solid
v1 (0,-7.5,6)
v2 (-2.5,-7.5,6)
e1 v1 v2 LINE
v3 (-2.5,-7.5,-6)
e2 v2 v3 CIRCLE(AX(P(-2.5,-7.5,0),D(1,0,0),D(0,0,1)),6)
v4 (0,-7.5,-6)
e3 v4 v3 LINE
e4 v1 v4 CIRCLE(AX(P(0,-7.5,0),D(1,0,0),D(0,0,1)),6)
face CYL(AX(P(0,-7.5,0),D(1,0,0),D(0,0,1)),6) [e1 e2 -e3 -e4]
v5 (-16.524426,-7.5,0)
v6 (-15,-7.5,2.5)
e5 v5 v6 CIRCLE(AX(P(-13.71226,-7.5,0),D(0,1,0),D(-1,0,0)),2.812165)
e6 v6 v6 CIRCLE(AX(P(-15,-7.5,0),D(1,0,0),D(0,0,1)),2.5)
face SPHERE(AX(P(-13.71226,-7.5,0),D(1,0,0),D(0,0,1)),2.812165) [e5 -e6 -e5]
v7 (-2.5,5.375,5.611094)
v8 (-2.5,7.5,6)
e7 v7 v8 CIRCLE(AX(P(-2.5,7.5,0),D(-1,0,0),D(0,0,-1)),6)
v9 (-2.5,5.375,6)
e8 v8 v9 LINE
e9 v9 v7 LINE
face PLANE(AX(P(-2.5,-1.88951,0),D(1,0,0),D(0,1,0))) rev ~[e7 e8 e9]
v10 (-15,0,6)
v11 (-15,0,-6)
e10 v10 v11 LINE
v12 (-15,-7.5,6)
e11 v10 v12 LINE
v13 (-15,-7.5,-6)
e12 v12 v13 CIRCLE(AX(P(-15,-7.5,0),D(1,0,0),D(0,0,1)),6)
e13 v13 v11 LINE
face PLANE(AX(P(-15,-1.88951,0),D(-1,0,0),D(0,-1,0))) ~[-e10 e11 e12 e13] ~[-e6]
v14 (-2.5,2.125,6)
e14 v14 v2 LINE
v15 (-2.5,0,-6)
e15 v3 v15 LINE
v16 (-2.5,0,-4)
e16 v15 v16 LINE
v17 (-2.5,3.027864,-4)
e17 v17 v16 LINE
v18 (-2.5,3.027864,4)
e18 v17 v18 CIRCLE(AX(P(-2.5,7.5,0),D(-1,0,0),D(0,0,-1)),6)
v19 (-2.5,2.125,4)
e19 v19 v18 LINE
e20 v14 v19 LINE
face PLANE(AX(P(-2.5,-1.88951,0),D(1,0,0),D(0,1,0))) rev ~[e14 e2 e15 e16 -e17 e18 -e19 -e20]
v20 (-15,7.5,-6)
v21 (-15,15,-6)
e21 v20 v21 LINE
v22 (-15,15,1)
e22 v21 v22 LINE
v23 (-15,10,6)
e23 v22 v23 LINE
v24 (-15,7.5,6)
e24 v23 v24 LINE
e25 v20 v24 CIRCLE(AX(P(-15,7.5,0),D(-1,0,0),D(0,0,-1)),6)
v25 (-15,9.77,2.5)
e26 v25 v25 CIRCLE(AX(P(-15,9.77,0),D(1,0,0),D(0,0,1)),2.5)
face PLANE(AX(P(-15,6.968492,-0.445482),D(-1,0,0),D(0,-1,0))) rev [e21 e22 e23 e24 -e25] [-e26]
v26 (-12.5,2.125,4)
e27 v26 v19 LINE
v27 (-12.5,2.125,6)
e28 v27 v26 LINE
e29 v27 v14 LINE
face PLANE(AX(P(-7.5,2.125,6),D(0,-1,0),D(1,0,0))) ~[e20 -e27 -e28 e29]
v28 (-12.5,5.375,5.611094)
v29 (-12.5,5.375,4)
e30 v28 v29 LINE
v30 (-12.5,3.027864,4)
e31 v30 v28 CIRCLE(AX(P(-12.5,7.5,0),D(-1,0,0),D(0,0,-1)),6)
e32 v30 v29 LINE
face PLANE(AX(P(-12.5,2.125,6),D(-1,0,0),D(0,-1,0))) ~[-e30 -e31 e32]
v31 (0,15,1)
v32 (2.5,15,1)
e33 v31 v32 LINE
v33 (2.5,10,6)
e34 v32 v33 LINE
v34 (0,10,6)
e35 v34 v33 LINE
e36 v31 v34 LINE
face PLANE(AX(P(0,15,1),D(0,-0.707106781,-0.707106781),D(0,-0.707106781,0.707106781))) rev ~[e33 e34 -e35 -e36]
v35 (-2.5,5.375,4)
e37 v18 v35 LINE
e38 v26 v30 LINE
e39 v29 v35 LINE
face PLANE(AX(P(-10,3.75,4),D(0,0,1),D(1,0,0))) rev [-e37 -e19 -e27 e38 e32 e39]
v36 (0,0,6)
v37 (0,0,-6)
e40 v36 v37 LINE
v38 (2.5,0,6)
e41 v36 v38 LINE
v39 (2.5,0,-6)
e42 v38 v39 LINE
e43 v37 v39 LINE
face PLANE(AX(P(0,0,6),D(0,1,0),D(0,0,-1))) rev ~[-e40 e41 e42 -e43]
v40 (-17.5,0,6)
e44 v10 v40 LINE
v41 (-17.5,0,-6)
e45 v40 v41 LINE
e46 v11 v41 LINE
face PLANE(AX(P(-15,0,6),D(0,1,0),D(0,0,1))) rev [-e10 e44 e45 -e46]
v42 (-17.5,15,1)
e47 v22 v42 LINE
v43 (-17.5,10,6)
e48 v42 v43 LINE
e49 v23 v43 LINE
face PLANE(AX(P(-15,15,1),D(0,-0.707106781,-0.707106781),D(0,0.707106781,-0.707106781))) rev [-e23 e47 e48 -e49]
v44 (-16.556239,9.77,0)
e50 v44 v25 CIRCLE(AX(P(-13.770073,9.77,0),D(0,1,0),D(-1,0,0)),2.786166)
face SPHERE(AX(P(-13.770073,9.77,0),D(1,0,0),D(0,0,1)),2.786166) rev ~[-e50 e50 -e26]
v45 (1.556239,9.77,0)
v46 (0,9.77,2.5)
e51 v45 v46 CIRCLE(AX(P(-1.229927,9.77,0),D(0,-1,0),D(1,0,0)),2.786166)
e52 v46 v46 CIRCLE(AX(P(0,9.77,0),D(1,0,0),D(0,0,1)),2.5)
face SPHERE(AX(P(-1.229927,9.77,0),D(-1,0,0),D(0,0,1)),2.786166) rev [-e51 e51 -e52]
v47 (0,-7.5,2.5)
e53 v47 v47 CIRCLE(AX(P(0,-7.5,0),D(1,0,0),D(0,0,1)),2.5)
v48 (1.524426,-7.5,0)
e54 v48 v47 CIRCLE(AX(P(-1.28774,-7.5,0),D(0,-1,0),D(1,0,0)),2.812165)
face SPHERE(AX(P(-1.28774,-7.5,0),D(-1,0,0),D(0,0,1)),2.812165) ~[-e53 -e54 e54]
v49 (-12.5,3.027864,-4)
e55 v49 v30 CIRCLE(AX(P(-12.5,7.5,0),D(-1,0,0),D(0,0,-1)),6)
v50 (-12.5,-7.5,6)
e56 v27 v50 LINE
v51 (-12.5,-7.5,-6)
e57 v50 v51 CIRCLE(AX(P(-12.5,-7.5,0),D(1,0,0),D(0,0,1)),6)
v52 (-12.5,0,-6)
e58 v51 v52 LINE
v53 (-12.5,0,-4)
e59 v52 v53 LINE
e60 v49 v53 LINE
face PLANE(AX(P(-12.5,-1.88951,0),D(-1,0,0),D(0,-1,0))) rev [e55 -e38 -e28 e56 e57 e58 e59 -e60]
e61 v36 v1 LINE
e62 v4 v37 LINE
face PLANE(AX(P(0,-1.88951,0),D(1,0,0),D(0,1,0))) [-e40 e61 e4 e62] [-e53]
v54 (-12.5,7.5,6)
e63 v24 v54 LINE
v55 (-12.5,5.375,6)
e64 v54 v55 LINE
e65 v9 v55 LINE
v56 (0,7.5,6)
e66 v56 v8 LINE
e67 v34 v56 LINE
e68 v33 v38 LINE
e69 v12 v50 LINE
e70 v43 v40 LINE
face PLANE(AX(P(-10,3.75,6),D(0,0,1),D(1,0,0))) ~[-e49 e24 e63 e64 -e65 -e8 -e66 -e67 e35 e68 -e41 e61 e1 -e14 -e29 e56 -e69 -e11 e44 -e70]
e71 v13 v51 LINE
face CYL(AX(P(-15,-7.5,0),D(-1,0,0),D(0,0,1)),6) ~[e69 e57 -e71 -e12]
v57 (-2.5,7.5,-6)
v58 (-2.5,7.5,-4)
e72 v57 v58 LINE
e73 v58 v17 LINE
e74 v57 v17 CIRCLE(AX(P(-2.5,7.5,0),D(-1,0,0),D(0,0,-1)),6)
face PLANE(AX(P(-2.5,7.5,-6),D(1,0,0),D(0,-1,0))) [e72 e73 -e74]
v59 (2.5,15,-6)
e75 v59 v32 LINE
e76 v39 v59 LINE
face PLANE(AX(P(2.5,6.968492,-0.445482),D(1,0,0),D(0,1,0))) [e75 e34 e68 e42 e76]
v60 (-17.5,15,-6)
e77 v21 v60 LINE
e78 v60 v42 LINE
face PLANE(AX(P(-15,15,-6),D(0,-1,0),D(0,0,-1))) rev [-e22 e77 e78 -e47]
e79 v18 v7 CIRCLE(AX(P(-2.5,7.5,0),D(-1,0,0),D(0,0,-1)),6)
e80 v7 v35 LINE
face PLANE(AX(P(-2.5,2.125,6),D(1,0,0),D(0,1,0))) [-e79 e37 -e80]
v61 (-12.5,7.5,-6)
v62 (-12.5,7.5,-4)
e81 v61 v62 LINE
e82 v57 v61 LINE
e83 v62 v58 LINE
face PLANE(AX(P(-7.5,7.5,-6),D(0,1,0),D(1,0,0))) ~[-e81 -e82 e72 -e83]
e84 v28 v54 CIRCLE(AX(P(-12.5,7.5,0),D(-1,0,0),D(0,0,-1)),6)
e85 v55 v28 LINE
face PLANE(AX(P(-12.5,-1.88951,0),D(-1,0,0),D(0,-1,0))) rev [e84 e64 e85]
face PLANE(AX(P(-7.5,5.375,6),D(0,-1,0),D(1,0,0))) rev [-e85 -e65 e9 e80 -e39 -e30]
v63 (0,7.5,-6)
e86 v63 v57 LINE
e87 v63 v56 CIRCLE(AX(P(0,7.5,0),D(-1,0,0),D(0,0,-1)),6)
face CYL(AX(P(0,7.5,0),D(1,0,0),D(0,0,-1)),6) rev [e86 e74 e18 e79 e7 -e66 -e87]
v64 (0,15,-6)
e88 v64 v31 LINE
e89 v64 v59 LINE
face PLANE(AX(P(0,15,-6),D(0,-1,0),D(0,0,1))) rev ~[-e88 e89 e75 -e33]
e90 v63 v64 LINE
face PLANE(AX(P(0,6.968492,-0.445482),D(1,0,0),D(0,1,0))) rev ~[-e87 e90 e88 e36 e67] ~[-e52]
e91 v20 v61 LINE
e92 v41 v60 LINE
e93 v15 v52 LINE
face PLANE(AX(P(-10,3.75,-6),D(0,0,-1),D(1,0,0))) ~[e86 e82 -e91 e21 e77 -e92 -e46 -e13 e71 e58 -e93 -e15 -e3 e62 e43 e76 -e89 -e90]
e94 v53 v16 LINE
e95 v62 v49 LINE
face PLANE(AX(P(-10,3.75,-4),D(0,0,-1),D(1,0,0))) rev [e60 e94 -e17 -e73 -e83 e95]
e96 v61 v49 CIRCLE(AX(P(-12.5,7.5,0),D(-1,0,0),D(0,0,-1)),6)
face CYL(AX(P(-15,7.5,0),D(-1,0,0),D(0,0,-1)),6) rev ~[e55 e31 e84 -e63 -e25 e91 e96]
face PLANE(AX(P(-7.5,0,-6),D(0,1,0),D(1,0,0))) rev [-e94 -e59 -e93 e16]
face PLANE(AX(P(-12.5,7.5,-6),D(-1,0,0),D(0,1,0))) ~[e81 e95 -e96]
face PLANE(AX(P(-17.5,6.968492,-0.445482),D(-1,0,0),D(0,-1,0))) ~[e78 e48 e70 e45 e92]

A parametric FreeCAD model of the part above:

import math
import FreeCAD as App
import Part
import Sketcher


def add_polygon(sketch, points):
    """Adds a closed chain of lines whose ends are joined by coincident constraints."""
    first, n = sketch.GeometryCount, len(points)
    for a, b in zip(points, points[1:] + points[:1]):
        sketch.addGeometry(Part.LineSegment(App.Vector(*a, 0), App.Vector(*b, 0)), False)
    for i in range(n):
        sketch.addConstraint(Sketcher.Constraint("Coincident", first + i, 2, first + (i + 1) % n, 1))

doc = App.newDocument("Part")
body = doc.addObject("PartDesign::Body", "Body")

# Sketch on YZ plane
sketch1 = doc.addObject("Sketcher::SketchObject", "Sketch")
body.addObject(sketch1)
sketch1.AttachmentSupport = (doc.YZ_Plane, [""])
sketch1.MapMode = "FlatFace"
sketch1.addGeometry([
    Part.ArcOfCircle(Part.Circle(App.Vector(7.5, 0, 0), App.Vector(0, 0, 1), 6), math.radians(90), math.radians(270)),
    Part.LineSegment(App.Vector(7.5, 6, 0), App.Vector(-7.5, 6, 0)),
    Part.ArcOfCircle(Part.Circle(App.Vector(-7.5, 0, 0), App.Vector(0, 0, 1), 6), math.radians(90), math.radians(270)),
    Part.LineSegment(App.Vector(-7.5, -6, 0), App.Vector(7.5, -6, 0)),
], False)
sketch1.addConstraint([
    Sketcher.Constraint("Tangent", 0, 1, 1, 1),
    Sketcher.Constraint("Tangent", 1, 2, 2, 1),
    Sketcher.Constraint("Tangent", 2, 2, 3, 1),
    Sketcher.Constraint("Tangent", 3, 2, 0, 2),
    Sketcher.Constraint("Horizontal", 1),
    Sketcher.Constraint("Horizontal", 3),
    Sketcher.Constraint("Symmetric", 0, 3, 2, 3, -1, 1),
    Sketcher.Constraint("Radius", 0, 6.0),
    Sketcher.Constraint("DistanceX", 1, 2, 1, 1, 15.0),
])
pad1 = doc.addObject("PartDesign::Pad", "Pad")
body.addObject(pad1)
pad1.Profile = sketch1
pad1.Length = 2.5
pad1.Reversed = True

# Sketch on YZ plane
sketch2 = doc.addObject("Sketcher::SketchObject", "Sketch001")
body.addObject(sketch2)
sketch2.AttachmentSupport = (doc.YZ_Plane, [""])
sketch2.MapMode = "FlatFace"
add_polygon(sketch2, [(0, 6), (0, -6), (15, -6), (15, 1), (10, 6)])  # lines 0-4
sketch2.addConstraint([
    Sketcher.Constraint("Vertical", 0),
    Sketcher.Constraint("Horizontal", 1),
    Sketcher.Constraint("Vertical", 2),
    Sketcher.Constraint("Horizontal", 4),
    Sketcher.Constraint("Symmetric", 0, 2, 4, 2, -1, 1),
    Sketcher.Constraint("DistanceX", 1, 1, 1, 2, 15.0),
    Sketcher.Constraint("DistanceX", 4, 2, 4, 1, 10.0),
    Sketcher.Constraint("DistanceY", 0, 2, 0, 1, 12.0),
    Sketcher.Constraint("DistanceY", 2, 1, 2, 2, 7.0),
])
pad2 = doc.addObject("PartDesign::Pad", "Pad001")
body.addObject(pad2)
pad2.Profile = sketch2
pad2.Length = 2.5

# Sketch on XZ plane
sketch3 = doc.addObject("Sketcher::SketchObject", "Sketch002")
body.addObject(sketch3)
sketch3.AttachmentSupport = (doc.XZ_Plane, [""])
sketch3.MapMode = "FlatFace"
sketch3.AttachmentOffset = App.Placement(App.Vector(0, 0, -9.77), App.Rotation())
sketch3.addGeometry([
    Part.LineSegment(App.Vector(-2.532516, 2.5, 0), App.Vector(-2.532516, 0, 0)),
    Part.LineSegment(App.Vector(-2.532516, 0, 0), App.Vector(1.556239, 0, 0)),
    Part.ArcOfCircle(Part.Circle(App.Vector(-1.229927, 0, 0), App.Vector(0, 0, 1), 2.786166), math.radians(0), math.radians(63.804168)),
    Part.LineSegment(App.Vector(0, 2.5, 0), App.Vector(-2.532516, 2.5, 0)),
], False)
sketch3.addConstraint([
    Sketcher.Constraint("Coincident", 0, 2, 1, 1),
    Sketcher.Constraint("Coincident", 1, 2, 2, 1),
    Sketcher.Constraint("Coincident", 2, 2, 3, 1),
    Sketcher.Constraint("Coincident", 3, 2, 0, 1),
    Sketcher.Constraint("Vertical", 0),
    Sketcher.Constraint("Horizontal", 1),
    Sketcher.Constraint("Horizontal", 3),
    Sketcher.Constraint("PointOnObject", 2, 3, -1),
    Sketcher.Constraint("PointOnObject", 0, 2, -1),
    Sketcher.Constraint("PointOnObject", 2, 2, -2),
    Sketcher.Constraint("DistanceY", 0, 2, 0, 1, 2.5),
    Sketcher.Constraint("Radius", 2, 2.786166),
    Sketcher.Constraint("DistanceX", 1, 1, 1, 2, 4.088755),
])
groove = doc.addObject("PartDesign::Groove", "Groove")
body.addObject(groove)
groove.Profile = sketch3
groove.ReferenceAxis = (sketch3, ["H_Axis"])
groove.Angle = 360

# Sketch on XY plane
sketch4 = doc.addObject("Sketcher::SketchObject", "Sketch003")
body.addObject(sketch4)
sketch4.AttachmentSupport = (doc.XY_Plane, [""])
sketch4.MapMode = "FlatFace"
sketch4.AttachmentOffset = App.Placement(App.Vector(0, 0, 6), App.Rotation())
add_polygon(sketch4, [(-7.5, 5.375), (-7.5, 2.125), (-2.5, 2.125), (-2.5, 5.375)])  # lines 0-3
sketch4.addConstraint([
    Sketcher.Constraint("Vertical", 0),
    Sketcher.Constraint("Horizontal", 1),
    Sketcher.Constraint("Vertical", 2),
    Sketcher.Constraint("Horizontal", 3),
    Sketcher.Constraint("DistanceX", 1, 1, 1, 2, 5.0),
    Sketcher.Constraint("DistanceY", 0, 2, 0, 1, 3.25),
    Sketcher.Constraint("DistanceX", 0, 2, -1, 1, 7.5),
    Sketcher.Constraint("DistanceY", -1, 1, 0, 2, 2.125),
])
pad3 = doc.addObject("PartDesign::Pad", "Pad002")
body.addObject(pad3)
pad3.Profile = sketch4
pad3.Length = 2
pad3.Reversed = True

# Sketch on XY plane
sketch5 = doc.addObject("Sketcher::SketchObject", "Sketch004")
body.addObject(sketch5)
sketch5.AttachmentSupport = (doc.XY_Plane, [""])
sketch5.MapMode = "FlatFace"
sketch5.AttachmentOffset = App.Placement(App.Vector(0, 0, -6), App.Rotation())
add_polygon(sketch5, [(-7.5, 0), (-7.5, 7.5), (-2.5, 7.5), (-2.5, 0)])  # lines 0-3
sketch5.addConstraint([
    Sketcher.Constraint("Vertical", 0),
    Sketcher.Constraint("Horizontal", 1),
    Sketcher.Constraint("Vertical", 2),
    Sketcher.Constraint("Horizontal", 3),
    Sketcher.Constraint("PointOnObject", 2, 2, -1),
    Sketcher.Constraint("DistanceX", 1, 1, 1, 2, 5.0),
    Sketcher.Constraint("DistanceY", 0, 1, 0, 2, 7.5),
    Sketcher.Constraint("DistanceX", 0, 2, -1, 1, 7.5),
])
pad4 = doc.addObject("PartDesign::Pad", "Pad003")
body.addObject(pad4)
pad4.Profile = sketch5
pad4.Length = 2

# Sketch on XZ plane
sketch6 = doc.addObject("Sketcher::SketchObject", "Sketch005")
body.addObject(sketch6)
sketch6.AttachmentSupport = (doc.XZ_Plane, [""])
sketch6.MapMode = "FlatFace"
sketch6.AttachmentOffset = App.Placement(App.Vector(0, 0, 7.5), App.Rotation())
sketch6.addGeometry([
    Part.LineSegment(App.Vector(0, 0, 0), App.Vector(1.524426, 0, 0)),
    Part.ArcOfCircle(Part.Circle(App.Vector(-1.28774, 0, 0), App.Vector(0, 0, 1), 2.812165), math.radians(0), math.radians(62.747192)),
    Part.LineSegment(App.Vector(0, 2.5, 0), App.Vector(0, 0, 0)),
], False)
sketch6.addConstraint([
    Sketcher.Constraint("Coincident", 0, 2, 1, 1),
    Sketcher.Constraint("Coincident", 1, 2, 2, 1),
    Sketcher.Constraint("Coincident", 2, 2, 0, 1),
    Sketcher.Constraint("Horizontal", 0),
    Sketcher.Constraint("Vertical", 2),
    Sketcher.Constraint("Coincident", 2, 2, -1, 1),
    Sketcher.Constraint("PointOnObject", 1, 3, -1),
    Sketcher.Constraint("DistanceY", 2, 2, 2, 1, 2.5),
    Sketcher.Constraint("Radius", 1, 2.812165),
])
revolution = doc.addObject("PartDesign::Revolution", "Revolution")
body.addObject(revolution)
revolution.Profile = sketch6
revolution.ReferenceAxis = (sketch6, ["H_Axis"])
revolution.Angle = 360
body2 = doc.addObject("PartDesign::Body", "Body001")
doc.recompute()

body2.BaseFeature = body
doc.recompute()

mirroring = doc.addObject("Part::Mirroring", "Mirroring")
mirroring.Source = body
mirroring.Base = App.Vector(-7.5, 3.75, -5)
mirroring.Normal = App.Vector(-1, 0, 0)
body3 = doc.addObject("PartDesign::Body", "Body002")
body3.BaseFeature = mirroring
boolean = doc.addObject("PartDesign::Boolean", "Boolean")
body2.addObject(boolean)
boolean.Type = "Fuse"
boolean.addObjects([body3])
doc.recompute()
mirroring.Visibility = False

doc.recompute()
